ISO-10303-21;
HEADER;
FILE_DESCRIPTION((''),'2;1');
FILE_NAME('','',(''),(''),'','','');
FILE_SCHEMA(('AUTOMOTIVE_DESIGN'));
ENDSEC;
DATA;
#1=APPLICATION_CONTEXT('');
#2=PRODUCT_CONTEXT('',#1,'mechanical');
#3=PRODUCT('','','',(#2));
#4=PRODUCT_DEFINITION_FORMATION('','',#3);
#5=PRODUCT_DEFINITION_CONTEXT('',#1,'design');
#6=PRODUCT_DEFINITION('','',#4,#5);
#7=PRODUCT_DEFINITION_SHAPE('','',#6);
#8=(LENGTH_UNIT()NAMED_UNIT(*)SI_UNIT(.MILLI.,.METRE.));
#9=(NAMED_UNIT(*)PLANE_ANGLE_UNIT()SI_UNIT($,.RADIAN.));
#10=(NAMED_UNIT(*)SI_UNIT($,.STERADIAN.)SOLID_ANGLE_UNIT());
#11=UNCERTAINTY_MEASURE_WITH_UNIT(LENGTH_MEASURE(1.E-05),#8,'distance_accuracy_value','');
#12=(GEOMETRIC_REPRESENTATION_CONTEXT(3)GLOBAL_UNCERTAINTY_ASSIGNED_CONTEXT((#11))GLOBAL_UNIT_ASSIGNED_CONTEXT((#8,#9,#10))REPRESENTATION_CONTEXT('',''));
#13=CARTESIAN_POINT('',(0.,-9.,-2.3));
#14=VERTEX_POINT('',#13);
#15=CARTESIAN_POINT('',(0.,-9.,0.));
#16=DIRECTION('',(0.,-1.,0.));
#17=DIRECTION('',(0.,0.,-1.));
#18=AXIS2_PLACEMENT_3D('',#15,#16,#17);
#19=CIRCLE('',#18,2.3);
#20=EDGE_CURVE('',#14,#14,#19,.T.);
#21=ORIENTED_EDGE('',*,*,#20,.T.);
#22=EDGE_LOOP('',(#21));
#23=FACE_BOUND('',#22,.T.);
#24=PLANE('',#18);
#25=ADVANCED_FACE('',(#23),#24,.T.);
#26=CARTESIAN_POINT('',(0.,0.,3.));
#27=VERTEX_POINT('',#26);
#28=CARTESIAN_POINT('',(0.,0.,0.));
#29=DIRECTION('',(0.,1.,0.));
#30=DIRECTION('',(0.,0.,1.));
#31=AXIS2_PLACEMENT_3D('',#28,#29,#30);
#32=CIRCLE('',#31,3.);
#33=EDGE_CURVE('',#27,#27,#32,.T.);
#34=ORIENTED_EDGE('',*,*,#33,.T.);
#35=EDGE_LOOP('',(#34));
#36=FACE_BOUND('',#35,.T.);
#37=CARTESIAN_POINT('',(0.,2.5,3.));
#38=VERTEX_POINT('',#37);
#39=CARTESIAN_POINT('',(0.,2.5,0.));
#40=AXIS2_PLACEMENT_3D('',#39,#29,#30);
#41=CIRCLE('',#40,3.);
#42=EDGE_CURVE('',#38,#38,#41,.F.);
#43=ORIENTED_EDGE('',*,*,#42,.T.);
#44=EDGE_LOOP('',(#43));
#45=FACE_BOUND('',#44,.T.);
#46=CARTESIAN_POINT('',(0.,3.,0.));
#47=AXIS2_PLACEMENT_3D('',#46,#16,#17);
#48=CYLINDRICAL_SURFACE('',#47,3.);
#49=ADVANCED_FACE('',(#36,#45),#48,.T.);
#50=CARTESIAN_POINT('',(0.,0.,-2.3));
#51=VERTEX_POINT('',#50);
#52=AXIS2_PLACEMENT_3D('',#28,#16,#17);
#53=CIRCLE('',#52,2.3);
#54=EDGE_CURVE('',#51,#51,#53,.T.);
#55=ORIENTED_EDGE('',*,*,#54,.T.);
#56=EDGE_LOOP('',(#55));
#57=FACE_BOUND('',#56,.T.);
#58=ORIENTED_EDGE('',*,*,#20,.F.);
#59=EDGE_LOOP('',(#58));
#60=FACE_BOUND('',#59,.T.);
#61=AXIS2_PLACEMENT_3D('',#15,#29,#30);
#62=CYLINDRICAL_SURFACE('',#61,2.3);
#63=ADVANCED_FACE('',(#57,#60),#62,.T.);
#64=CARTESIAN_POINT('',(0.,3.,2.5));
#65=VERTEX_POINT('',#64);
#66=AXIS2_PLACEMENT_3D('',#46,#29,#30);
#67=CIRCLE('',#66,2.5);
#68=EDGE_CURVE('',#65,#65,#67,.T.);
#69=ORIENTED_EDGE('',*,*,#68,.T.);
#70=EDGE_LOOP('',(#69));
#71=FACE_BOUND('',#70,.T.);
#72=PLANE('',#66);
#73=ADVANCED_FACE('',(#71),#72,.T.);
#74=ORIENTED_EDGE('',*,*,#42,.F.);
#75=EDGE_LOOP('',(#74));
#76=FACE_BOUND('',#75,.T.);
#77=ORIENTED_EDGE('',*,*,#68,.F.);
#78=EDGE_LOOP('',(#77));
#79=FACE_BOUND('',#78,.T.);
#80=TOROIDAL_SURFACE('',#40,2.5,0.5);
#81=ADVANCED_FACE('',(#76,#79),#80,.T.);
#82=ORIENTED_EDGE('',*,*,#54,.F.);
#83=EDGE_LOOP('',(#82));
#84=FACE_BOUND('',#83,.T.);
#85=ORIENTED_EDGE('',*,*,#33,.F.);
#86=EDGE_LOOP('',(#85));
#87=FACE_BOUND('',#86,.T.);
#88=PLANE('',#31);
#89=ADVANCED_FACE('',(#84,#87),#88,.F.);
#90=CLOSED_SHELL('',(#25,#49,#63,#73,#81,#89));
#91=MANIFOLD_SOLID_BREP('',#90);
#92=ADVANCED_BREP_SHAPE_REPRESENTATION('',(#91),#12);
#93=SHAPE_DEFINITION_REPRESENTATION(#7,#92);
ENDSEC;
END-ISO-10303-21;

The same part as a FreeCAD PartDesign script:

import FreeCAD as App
import Part
import Sketcher


def edges_at(feature, points):
    """Names of the edges that pass closest to the given points."""
    edges = feature.Shape.Edges
    near = lambda p: min(range(len(edges)), key=lambda i: edges[i].distToShape(Part.Vertex(*p))[0])
    return sorted({f"Edge{near(p) + 1}" for p in points})

doc = App.newDocument("Part")
params = doc.addObject("Spreadsheet::Sheet", "Params")
for row, (alias, value) in enumerate([
    ("sketch1_diameter", "6 mm"),
    ("pad1_length", "3 mm"),
    ("fillet_radius", "0.5 mm"),
    ("sketch2_diameter", "4.6 mm"),
    ("pad2_length", "9 mm"),
], start=1):
    params.set(f"A{row}", alias)
    params.set(f"B{row}", "=" + value)
    params.setAlias(f"B{row}", alias)

body = doc.addObject("PartDesign::Body", "Body")

sketch1 = doc.addObject("Sketcher::SketchObject", "Sketch")
body.addObject(sketch1)
sketch1.AttachmentSupport = (doc.XZ_Plane, [""])
sketch1.MapMode = "FlatFace"
sketch1.addGeometry(Part.Circle(App.Vector(0, 0, 0), App.Vector(0, 0, 1), 3), False)
sketch1.addConstraint(Sketcher.Constraint("Coincident", 0, 3, -1, 1))
sketch1.addConstraint(Sketcher.Constraint("Diameter", 0, 6.0))
sketch1.setExpression("Constraints[1]", "Params.sketch1_diameter")
pad1 = doc.addObject("PartDesign::Pad", "Pad")
body.addObject(pad1)
pad1.Profile = sketch1
pad1.setExpression("Length", "Params.pad1_length")
pad1.Reversed = True
doc.recompute()

fillet = doc.addObject("PartDesign::Fillet", "Fillet")
body.addObject(fillet)
fillet.Base = (pad1, edges_at(pad1, [(-3, 3, 0)]))
fillet.setExpression("Radius", "Params.fillet_radius")

sketch2 = doc.addObject("Sketcher::SketchObject", "Sketch001")
body.addObject(sketch2)
sketch2.AttachmentSupport = (doc.XZ_Plane, [""])
sketch2.MapMode = "FlatFace"
sketch2.addGeometry(Part.Circle(App.Vector(0, 0, 0), App.Vector(0, 0, 1), 2.3), False)
sketch2.addConstraint(Sketcher.Constraint("Coincident", 0, 3, -1, 1))
sketch2.addConstraint(Sketcher.Constraint("Diameter", 0, 4.6))
sketch2.setExpression("Constraints[1]", "Params.sketch2_diameter")
pad2 = doc.addObject("PartDesign::Pad", "Pad001")
body.addObject(pad2)
pad2.Profile = sketch2
pad2.setExpression("Length", "Params.pad2_length")

doc.recompute()
